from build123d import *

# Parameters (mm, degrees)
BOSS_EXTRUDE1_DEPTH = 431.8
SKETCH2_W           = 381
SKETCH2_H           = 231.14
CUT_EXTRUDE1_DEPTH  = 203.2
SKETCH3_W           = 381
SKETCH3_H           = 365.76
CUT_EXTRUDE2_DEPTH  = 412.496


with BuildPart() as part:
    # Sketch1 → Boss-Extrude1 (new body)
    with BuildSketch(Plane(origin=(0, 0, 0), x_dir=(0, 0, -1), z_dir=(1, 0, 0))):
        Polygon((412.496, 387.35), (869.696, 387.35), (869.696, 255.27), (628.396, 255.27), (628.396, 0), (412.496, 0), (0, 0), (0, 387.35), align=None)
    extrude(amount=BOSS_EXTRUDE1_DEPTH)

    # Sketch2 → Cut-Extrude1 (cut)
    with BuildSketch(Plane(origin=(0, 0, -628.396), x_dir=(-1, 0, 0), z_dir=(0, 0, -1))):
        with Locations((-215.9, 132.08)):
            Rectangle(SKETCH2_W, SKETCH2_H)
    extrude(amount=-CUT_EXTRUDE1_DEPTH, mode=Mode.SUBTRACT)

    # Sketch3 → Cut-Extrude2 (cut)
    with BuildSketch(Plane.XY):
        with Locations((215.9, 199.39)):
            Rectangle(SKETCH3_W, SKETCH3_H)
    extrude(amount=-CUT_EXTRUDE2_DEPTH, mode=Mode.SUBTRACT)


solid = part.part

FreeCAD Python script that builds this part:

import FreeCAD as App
import Part
import Sketcher
from FreeCAD import Vector
Q = App.Units.Quantity


def add_polygon(sketch, points):
    """Adds a closed chain of lines whose ends are joined by coincident constraints."""
    first, n = sketch.GeometryCount, len(points)
    for a, b in zip(points, points[1:] + points[:1]):
        sketch.addGeometry(Part.LineSegment(App.Vector(*a, 0), App.Vector(*b, 0)), False)
    for i in range(n):
        sketch.addConstraint(Sketcher.Constraint("Coincident", first + i, 2, first + (i + 1) % n, 1))

doc = App.newDocument("Part")
params = doc.addObject("Spreadsheet::Sheet", "Params")
for row, (alias, value) in enumerate([
    ("sketch1_width", "5.2 in"),
    ("sketch1_height", "9.5 in"),
    ("sketch1_width2", "15.25 in"),
    ("sketch1_height2", "34.24 in"),
    ("pad1_length", "17 in"),
    ("sketch2_width", "15 in"),
    ("sketch2_height", "9.1 in"),
    ("pocket1_length", "8 in"),
    ("sketch3_width", "15 in"),
    ("sketch3_height", "14.4 in"),
    ("pocket2_length", "16.24 in"),
], start=1):
    params.set(f"A{row}", alias)
    params.set(f"B{row}", "=" + value)
    params.setAlias(f"B{row}", alias)

body = doc.addObject("PartDesign::Body", "Body")

sketch1 = body.newObject("Sketcher::SketchObject", "Sketch")
sketch1.AttachmentSupport = (doc.getObject("YZ_Plane"), [""])
sketch1.MapMode = "FlatFace"
add_polygon(sketch1, [(387, -870), (387, 0), (0, 0), (0, -628), (255, -628), (255, -870)])
sketch1.addConstraint(Sketcher.Constraint("Vertical", 0))
sketch1.addConstraint(Sketcher.Constraint("Horizontal", 1))
sketch1.addConstraint(Sketcher.Constraint("Vertical", 2))
sketch1.addConstraint(Sketcher.Constraint("Horizontal", 3))
sketch1.addConstraint(Sketcher.Constraint("Vertical", 4))
sketch1.addConstraint(Sketcher.Constraint("Horizontal", 5))
sketch1.addConstraint(Sketcher.Constraint("Coincident", 1, 2, -1, 1))
sketch1.addConstraint(Sketcher.Constraint("DistanceX", 5, 1, 5, 2, Q("5.2 in")))
sketch1.addConstraint(Sketcher.Constraint("DistanceY", 4, 2, 4, 1, Q("9.5 in")))
sketch1.addConstraint(Sketcher.Constraint("DistanceX", 1, 2, 1, 1, Q("15.25 in")))
sketch1.addConstraint(Sketcher.Constraint("DistanceY", 0, 1, 0, 2, Q("34.24 in")))
sketch1.setExpression("Constraints[13]", "Params.sketch1_width")
sketch1.setExpression("Constraints[14]", "Params.sketch1_height")
sketch1.setExpression("Constraints[15]", "Params.sketch1_width2")
sketch1.setExpression("Constraints[16]", "Params.sketch1_height2")
pad1 = body.newObject("PartDesign::Pad", "Pad")
pad1.Profile = sketch1
pad1.setExpression("Length", "Params.pad1_length")

sketch2 = body.newObject("Sketcher::SketchObject", "Sketch001")
sketch2.AttachmentSupport = (doc.getObject("XY_Plane"), [""])
sketch2.MapMode = "FlatFace"
sketch2.AttachmentOffset = App.Placement(Vector(0, 0, -24.74 * 25.4), App.Rotation())
add_polygon(sketch2, [(406, 248), (406, 17), (25, 17), (25, 248)])
sketch2.addConstraint(Sketcher.Constraint("Vertical", 0))
sketch2.addConstraint(Sketcher.Constraint("Horizontal", 1))
sketch2.addConstraint(Sketcher.Constraint("Vertical", 2))
sketch2.addConstraint(Sketcher.Constraint("Horizontal", 3))
sketch2.addConstraint(Sketcher.Constraint("DistanceX", 1, 2, 1, 1, Q("15 in")))
sketch2.addConstraint(Sketcher.Constraint("DistanceY", 0, 2, 0, 1, Q("9.1 in")))
sketch2.addConstraint(Sketcher.Constraint("DistanceX", -1, 1, 0, 2, Q("16 in")))
sketch2.addConstraint(Sketcher.Constraint("DistanceY", -1, 1, 0, 2, Q("0.65 in")))
sketch2.setExpression("Constraints[8]", "Params.sketch2_width")
sketch2.setExpression("Constraints[9]", "Params.sketch2_height")
pocket1 = body.newObject("PartDesign::Pocket", "Pocket")
pocket1.Profile = sketch2
pocket1.setExpression("Length", "Params.pocket1_length")
pocket1.Reversed = True

sketch3 = body.newObject("Sketcher::SketchObject", "Sketch002")
sketch3.AttachmentSupport = (doc.getObject("XY_Plane"), [""])
sketch3.MapMode = "FlatFace"
add_polygon(sketch3, [(25, 382), (25, 17), (406, 17), (406, 382)])
sketch3.addConstraint(Sketcher.Constraint("Vertical", 0))
sketch3.addConstraint(Sketcher.Constraint("Horizontal", 1))
sketch3.addConstraint(Sketcher.Constraint("Vertical", 2))
sketch3.addConstraint(Sketcher.Constraint("Horizontal", 3))
sketch3.addConstraint(Sketcher.Constraint("DistanceX", 1, 1, 1, 2, Q("15 in")))
sketch3.addConstraint(Sketcher.Constraint("DistanceY", 0, 2, 0, 1, Q("14.4 in")))
sketch3.addConstraint(Sketcher.Constraint("DistanceX", -1, 1, 0, 2, Q("1 in")))
sketch3.addConstraint(Sketcher.Constraint("DistanceY", -1, 1, 0, 2, Q("0.65 in")))
sketch3.setExpression("Constraints[8]", "Params.sketch3_width")
sketch3.setExpression("Constraints[9]", "Params.sketch3_height")
pocket2 = body.newObject("PartDesign::Pocket", "Pocket001")
pocket2.Profile = sketch3
pocket2.setExpression("Length", "Params.pocket2_length")

doc.recompute()
